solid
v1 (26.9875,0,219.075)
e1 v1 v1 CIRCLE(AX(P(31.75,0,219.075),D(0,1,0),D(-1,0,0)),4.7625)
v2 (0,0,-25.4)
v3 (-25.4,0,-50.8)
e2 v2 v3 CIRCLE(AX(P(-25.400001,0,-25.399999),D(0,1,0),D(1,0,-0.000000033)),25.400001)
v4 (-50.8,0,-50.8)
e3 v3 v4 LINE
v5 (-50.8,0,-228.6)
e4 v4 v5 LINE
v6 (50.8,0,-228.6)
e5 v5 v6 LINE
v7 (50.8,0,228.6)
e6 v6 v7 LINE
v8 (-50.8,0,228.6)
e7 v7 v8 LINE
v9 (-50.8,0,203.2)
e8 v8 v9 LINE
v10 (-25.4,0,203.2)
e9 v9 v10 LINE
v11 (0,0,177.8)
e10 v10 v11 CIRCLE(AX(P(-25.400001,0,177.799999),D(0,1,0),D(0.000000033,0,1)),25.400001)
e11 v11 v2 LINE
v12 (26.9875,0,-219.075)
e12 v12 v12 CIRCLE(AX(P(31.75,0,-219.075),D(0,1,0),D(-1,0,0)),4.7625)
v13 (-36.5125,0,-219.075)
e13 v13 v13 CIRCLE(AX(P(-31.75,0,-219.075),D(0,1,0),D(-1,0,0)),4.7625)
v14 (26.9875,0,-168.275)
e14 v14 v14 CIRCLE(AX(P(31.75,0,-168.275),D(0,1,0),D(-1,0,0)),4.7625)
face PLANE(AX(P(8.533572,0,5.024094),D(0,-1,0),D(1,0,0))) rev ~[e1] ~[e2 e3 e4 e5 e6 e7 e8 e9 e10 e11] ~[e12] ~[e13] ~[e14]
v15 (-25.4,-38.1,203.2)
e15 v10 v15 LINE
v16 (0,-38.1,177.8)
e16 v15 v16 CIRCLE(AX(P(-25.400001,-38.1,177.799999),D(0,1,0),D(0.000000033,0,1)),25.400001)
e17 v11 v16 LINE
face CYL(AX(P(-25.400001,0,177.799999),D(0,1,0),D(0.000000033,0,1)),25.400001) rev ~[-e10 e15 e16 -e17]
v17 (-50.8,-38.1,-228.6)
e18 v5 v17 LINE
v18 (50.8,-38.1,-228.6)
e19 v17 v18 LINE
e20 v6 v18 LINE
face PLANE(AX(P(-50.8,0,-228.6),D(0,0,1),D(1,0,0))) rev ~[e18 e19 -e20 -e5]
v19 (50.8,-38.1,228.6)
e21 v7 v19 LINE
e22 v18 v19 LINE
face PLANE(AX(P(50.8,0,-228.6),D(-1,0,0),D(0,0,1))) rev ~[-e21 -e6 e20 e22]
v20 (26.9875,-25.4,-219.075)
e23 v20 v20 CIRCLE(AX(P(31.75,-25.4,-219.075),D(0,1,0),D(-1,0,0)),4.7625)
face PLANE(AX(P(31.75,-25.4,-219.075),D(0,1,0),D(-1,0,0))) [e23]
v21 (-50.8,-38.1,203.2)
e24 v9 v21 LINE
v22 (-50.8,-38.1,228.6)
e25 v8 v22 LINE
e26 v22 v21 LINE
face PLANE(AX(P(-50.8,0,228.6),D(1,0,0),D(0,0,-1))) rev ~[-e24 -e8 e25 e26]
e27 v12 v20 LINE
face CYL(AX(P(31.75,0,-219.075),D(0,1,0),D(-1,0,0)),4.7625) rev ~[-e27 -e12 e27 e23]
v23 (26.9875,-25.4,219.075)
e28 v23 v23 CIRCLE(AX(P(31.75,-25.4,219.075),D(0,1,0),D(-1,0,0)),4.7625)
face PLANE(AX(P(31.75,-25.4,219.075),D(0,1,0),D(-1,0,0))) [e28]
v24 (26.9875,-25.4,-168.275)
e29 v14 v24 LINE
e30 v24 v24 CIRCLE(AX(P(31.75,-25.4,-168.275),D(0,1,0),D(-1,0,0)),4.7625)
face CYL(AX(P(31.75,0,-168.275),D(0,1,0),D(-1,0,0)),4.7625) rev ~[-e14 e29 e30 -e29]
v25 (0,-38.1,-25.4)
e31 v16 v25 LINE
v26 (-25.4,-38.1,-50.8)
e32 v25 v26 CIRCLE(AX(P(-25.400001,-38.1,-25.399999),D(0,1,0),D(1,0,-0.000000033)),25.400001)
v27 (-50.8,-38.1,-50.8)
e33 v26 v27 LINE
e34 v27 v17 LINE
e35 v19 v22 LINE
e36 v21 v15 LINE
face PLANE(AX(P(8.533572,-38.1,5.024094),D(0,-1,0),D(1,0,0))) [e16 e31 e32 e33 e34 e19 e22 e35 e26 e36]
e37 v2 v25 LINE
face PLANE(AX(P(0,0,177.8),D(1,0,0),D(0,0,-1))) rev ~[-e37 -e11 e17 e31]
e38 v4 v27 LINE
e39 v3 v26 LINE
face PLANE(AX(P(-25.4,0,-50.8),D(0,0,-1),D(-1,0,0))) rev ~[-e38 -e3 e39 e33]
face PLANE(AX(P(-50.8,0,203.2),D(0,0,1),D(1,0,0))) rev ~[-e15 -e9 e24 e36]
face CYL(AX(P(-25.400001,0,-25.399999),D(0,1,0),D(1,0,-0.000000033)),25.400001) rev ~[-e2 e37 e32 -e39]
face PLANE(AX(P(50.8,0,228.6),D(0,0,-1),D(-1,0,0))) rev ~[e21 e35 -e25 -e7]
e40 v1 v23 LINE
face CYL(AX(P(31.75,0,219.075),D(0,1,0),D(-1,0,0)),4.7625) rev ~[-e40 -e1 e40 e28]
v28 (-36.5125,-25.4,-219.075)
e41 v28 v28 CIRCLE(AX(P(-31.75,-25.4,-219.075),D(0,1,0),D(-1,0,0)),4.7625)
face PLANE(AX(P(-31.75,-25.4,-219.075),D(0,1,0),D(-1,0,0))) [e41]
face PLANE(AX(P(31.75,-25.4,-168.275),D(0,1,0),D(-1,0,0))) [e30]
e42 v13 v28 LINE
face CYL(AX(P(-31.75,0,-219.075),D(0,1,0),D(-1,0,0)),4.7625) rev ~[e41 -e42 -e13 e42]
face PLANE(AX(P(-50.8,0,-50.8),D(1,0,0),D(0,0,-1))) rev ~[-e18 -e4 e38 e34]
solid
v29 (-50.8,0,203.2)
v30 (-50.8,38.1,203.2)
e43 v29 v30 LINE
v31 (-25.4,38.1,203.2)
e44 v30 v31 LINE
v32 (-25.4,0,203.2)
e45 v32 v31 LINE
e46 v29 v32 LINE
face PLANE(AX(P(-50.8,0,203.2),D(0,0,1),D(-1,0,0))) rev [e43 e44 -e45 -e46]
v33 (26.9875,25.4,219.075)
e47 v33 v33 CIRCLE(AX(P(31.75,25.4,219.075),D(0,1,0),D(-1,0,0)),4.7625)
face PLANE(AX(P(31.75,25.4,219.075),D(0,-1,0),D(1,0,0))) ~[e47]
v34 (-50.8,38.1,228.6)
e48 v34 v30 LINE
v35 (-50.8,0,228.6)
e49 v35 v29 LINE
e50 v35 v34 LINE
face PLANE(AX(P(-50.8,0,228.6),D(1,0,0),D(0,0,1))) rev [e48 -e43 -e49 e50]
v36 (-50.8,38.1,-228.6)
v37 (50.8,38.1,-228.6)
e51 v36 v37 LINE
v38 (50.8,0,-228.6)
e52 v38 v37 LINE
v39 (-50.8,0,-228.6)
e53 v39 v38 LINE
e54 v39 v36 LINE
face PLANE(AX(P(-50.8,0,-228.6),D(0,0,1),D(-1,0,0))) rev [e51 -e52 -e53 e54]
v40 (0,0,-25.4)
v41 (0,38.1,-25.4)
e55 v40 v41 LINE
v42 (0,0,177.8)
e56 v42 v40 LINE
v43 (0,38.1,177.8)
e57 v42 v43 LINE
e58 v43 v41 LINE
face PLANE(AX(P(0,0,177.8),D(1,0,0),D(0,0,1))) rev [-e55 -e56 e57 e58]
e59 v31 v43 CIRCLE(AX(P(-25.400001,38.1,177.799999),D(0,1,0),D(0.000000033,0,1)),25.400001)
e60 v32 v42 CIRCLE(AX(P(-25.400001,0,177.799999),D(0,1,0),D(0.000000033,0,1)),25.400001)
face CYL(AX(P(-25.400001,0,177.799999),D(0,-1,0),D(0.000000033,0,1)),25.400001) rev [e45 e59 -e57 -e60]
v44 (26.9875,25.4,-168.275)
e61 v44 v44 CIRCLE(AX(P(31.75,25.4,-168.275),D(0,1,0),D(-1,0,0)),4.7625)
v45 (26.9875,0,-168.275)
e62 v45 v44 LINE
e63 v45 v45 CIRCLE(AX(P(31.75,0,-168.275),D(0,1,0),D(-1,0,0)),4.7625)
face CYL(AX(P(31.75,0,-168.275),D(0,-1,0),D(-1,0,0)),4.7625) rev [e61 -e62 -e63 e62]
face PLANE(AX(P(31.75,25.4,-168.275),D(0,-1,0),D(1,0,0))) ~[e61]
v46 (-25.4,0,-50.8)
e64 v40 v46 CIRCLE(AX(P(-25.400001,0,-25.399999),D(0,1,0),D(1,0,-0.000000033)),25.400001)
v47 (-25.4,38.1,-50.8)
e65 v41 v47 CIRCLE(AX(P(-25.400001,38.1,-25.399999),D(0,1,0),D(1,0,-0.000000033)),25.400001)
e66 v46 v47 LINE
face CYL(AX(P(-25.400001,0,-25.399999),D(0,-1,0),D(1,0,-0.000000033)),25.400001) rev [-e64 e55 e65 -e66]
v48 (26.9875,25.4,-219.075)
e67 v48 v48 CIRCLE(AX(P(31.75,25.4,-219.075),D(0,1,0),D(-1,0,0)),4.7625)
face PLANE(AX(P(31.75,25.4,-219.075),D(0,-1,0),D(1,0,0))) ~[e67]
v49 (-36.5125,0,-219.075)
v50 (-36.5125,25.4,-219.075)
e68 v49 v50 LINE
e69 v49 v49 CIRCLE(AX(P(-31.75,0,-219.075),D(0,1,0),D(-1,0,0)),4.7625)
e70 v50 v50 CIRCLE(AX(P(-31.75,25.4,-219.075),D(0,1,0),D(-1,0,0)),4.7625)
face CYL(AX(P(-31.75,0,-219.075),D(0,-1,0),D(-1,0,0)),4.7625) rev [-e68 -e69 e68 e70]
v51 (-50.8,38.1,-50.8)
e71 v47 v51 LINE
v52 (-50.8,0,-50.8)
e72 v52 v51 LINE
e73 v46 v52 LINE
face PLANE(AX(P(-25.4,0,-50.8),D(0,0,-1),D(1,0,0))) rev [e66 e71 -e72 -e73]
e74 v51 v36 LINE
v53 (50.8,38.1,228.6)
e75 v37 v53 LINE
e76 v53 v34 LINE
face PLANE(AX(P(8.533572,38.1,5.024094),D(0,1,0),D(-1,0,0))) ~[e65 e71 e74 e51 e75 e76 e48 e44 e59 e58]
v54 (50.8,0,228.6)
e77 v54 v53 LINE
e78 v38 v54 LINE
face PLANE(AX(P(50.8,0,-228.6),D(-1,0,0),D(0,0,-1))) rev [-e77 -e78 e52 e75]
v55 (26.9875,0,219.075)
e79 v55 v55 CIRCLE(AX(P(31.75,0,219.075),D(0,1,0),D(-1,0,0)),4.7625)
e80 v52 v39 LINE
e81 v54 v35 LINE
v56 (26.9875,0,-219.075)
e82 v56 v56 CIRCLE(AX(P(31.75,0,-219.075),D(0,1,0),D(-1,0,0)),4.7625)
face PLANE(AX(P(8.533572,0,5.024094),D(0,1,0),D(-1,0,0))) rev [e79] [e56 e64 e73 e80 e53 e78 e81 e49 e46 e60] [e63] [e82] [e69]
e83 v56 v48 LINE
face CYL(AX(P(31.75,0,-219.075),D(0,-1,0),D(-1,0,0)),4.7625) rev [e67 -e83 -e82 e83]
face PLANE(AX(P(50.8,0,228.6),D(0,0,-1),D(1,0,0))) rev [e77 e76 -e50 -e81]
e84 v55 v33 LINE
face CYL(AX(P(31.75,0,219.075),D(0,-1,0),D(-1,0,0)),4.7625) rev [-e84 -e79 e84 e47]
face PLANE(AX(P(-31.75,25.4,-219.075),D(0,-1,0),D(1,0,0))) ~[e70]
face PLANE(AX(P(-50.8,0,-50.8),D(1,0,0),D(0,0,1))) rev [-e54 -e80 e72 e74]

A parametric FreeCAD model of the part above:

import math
import FreeCAD as App
import Part
import Sketcher
from FreeCAD import Vector
Q = App.Units.Quantity

doc = App.newDocument("Part")
body = doc.addObject("PartDesign::Body", "Body")

sketch1 = doc.addObject("Sketcher::SketchObject", "Sketch")
body.addObject(sketch1)
sketch1.AttachmentSupport = (doc.XZ_Plane, [""])
sketch1.MapMode = "FlatFace"
sketch1.addGeometry([
    Part.LineSegment(Vector(51, -229, 0), Vector(51, 229, 0)),
    Part.LineSegment(Vector(51, 229, 0), Vector(-51, 229, 0)),
    Part.LineSegment(Vector(-51, 229, 0), Vector(-51, 203, 0)),
    Part.LineSegment(Vector(-51, 203, 0), Vector(-25, 203, 0)),
    Part.ArcOfCircle(Part.Circle(Vector(-25, 178, 0), Vector(0, 0, 1), 25), math.radians(0), math.radians(90)),
    Part.LineSegment(Vector(0, 178, 0), Vector(0, -25, 0)),
    Part.ArcOfCircle(Part.Circle(Vector(-25, -25, 0), Vector(0, 0, 1), 25), math.radians(-90), math.radians(0)),
    Part.LineSegment(Vector(-25, -51, 0), Vector(-51, -51, 0)),
    Part.LineSegment(Vector(-51, -51, 0), Vector(-51, -229, 0)),
    Part.LineSegment(Vector(-51, -229, 0), Vector(51, -229, 0)),
], False)
sketch1.addConstraint([
    Sketcher.Constraint("Coincident", 0, 2, 1, 1),
    Sketcher.Constraint("Coincident", 1, 2, 2, 1),
    Sketcher.Constraint("Coincident", 2, 2, 3, 1),
    Sketcher.Constraint("Tangent", 3, 2, 4, 2),
    Sketcher.Constraint("Tangent", 4, 1, 5, 1),
    Sketcher.Constraint("Tangent", 5, 2, 6, 2),
    Sketcher.Constraint("Tangent", 6, 1, 7, 1),
    Sketcher.Constraint("Coincident", 7, 2, 8, 1),
    Sketcher.Constraint("Coincident", 8, 2, 9, 1),
    Sketcher.Constraint("Coincident", 9, 2, 0, 1),
    Sketcher.Constraint("Vertical", 0),
    Sketcher.Constraint("Horizontal", 1),
    Sketcher.Constraint("Vertical", 2),
    Sketcher.Constraint("Horizontal", 3),
    Sketcher.Constraint("Vertical", 5),
    Sketcher.Constraint("Horizontal", 7),
    Sketcher.Constraint("Vertical", 8),
    Sketcher.Constraint("Horizontal", 9),
    Sketcher.Constraint("Equal", 4, 6),
    Sketcher.Constraint("Symmetric", 0, 2, 8, 2, -1, 1),
    Sketcher.Constraint("PointOnObject", 4, 1, -2),
    Sketcher.Constraint("Vertical", 2, 2, 7, 2),
    Sketcher.Constraint("Equal", 7, 2),
    Sketcher.Constraint("Radius", 4, Q("1 in")),
    Sketcher.Constraint("DistanceX", 1, 2, 1, 1, Q("4 in")),
    Sketcher.Constraint("DistanceY", 0, 1, 0, 2, Q("18 in")),
    Sketcher.Constraint("DistanceY", 5, 2, 5, 1, Q("8 in")),
])
pad1 = doc.addObject("PartDesign::Pad", "Pad")
body.addObject(pad1)
pad1.Profile = sketch1
pad1.Length = Q("1.5 in")

sketch2 = doc.addObject("Sketcher::SketchObject", "Sketch001")
body.addObject(sketch2)
sketch2.AttachmentSupport = (doc.XZ_Plane, [""])
sketch2.MapMode = "FlatFace"
sketch2.addGeometry([
    Part.Circle(Vector(31.8, -219.1, 0), Vector(0, 0, 1), 4.8),
    Part.Circle(Vector(-31.8, -219.1, 0), Vector(0, 0, 1), 4.8),
    Part.Circle(Vector(31.8, -168.3, 0), Vector(0, 0, 1), 4.8),
], False)
sketch2.addConstraint([
    Sketcher.Constraint("Equal", 0, 1),
    Sketcher.Constraint("Equal", 1, 2),
    Sketcher.Constraint("Symmetric", 0, 3, 1, 3, -2),
    Sketcher.Constraint("Vertical", 0, 3, 2, 3),
    Sketcher.Constraint("Diameter", 0, Q("0.375 in")),
    Sketcher.Constraint("DistanceY", 0, 3, 2, 3, Q("2 in")),
    Sketcher.Constraint("DistanceX", 1, 3, 0, 3, Q("2.5 in")),
    Sketcher.Constraint("DistanceY", 0, 3, -1, 1, Q("8.625 in")),
])
pocket1 = doc.addObject("PartDesign::Pocket", "Pocket")
body.addObject(pocket1)
pocket1.Profile = sketch2
pocket1.Length = Q("1 in")
pocket1.Reversed = True

sketch3 = doc.addObject("Sketcher::SketchObject", "Sketch002")
body.addObject(sketch3)
sketch3.AttachmentSupport = (doc.XZ_Plane, [""])
sketch3.MapMode = "FlatFace"
sketch3.addGeometry(Part.Circle(Vector(31.8, 219.1, 0), Vector(0, 0, 1), 4.8), False)
sketch3.addConstraint([
    Sketcher.Constraint("Diameter", 0, Q("0.375 in")),
    Sketcher.Constraint("DistanceX", -1, 1, 0, 3, Q("1.25 in")),
    Sketcher.Constraint("DistanceY", -1, 1, 0, 3, Q("8.625 in")),
])
pocket2 = doc.addObject("PartDesign::Pocket", "Pocket001")
body.addObject(pocket2)
pocket2.Profile = sketch3
pocket2.Length = Q("1 in")
pocket2.Reversed = True
body2 = doc.addObject("PartDesign::Body", "Body001")
doc.recompute()

mirroring = doc.addObject("Part::Mirroring", "Mirroring")
mirroring.Source = body
mirroring.Base = Vector(0, 0, 0)
mirroring.Normal = Vector(0, -1, 0)
body2.BaseFeature = mirroring
doc.recompute()
mirroring.Visibility = False

doc.recompute()
